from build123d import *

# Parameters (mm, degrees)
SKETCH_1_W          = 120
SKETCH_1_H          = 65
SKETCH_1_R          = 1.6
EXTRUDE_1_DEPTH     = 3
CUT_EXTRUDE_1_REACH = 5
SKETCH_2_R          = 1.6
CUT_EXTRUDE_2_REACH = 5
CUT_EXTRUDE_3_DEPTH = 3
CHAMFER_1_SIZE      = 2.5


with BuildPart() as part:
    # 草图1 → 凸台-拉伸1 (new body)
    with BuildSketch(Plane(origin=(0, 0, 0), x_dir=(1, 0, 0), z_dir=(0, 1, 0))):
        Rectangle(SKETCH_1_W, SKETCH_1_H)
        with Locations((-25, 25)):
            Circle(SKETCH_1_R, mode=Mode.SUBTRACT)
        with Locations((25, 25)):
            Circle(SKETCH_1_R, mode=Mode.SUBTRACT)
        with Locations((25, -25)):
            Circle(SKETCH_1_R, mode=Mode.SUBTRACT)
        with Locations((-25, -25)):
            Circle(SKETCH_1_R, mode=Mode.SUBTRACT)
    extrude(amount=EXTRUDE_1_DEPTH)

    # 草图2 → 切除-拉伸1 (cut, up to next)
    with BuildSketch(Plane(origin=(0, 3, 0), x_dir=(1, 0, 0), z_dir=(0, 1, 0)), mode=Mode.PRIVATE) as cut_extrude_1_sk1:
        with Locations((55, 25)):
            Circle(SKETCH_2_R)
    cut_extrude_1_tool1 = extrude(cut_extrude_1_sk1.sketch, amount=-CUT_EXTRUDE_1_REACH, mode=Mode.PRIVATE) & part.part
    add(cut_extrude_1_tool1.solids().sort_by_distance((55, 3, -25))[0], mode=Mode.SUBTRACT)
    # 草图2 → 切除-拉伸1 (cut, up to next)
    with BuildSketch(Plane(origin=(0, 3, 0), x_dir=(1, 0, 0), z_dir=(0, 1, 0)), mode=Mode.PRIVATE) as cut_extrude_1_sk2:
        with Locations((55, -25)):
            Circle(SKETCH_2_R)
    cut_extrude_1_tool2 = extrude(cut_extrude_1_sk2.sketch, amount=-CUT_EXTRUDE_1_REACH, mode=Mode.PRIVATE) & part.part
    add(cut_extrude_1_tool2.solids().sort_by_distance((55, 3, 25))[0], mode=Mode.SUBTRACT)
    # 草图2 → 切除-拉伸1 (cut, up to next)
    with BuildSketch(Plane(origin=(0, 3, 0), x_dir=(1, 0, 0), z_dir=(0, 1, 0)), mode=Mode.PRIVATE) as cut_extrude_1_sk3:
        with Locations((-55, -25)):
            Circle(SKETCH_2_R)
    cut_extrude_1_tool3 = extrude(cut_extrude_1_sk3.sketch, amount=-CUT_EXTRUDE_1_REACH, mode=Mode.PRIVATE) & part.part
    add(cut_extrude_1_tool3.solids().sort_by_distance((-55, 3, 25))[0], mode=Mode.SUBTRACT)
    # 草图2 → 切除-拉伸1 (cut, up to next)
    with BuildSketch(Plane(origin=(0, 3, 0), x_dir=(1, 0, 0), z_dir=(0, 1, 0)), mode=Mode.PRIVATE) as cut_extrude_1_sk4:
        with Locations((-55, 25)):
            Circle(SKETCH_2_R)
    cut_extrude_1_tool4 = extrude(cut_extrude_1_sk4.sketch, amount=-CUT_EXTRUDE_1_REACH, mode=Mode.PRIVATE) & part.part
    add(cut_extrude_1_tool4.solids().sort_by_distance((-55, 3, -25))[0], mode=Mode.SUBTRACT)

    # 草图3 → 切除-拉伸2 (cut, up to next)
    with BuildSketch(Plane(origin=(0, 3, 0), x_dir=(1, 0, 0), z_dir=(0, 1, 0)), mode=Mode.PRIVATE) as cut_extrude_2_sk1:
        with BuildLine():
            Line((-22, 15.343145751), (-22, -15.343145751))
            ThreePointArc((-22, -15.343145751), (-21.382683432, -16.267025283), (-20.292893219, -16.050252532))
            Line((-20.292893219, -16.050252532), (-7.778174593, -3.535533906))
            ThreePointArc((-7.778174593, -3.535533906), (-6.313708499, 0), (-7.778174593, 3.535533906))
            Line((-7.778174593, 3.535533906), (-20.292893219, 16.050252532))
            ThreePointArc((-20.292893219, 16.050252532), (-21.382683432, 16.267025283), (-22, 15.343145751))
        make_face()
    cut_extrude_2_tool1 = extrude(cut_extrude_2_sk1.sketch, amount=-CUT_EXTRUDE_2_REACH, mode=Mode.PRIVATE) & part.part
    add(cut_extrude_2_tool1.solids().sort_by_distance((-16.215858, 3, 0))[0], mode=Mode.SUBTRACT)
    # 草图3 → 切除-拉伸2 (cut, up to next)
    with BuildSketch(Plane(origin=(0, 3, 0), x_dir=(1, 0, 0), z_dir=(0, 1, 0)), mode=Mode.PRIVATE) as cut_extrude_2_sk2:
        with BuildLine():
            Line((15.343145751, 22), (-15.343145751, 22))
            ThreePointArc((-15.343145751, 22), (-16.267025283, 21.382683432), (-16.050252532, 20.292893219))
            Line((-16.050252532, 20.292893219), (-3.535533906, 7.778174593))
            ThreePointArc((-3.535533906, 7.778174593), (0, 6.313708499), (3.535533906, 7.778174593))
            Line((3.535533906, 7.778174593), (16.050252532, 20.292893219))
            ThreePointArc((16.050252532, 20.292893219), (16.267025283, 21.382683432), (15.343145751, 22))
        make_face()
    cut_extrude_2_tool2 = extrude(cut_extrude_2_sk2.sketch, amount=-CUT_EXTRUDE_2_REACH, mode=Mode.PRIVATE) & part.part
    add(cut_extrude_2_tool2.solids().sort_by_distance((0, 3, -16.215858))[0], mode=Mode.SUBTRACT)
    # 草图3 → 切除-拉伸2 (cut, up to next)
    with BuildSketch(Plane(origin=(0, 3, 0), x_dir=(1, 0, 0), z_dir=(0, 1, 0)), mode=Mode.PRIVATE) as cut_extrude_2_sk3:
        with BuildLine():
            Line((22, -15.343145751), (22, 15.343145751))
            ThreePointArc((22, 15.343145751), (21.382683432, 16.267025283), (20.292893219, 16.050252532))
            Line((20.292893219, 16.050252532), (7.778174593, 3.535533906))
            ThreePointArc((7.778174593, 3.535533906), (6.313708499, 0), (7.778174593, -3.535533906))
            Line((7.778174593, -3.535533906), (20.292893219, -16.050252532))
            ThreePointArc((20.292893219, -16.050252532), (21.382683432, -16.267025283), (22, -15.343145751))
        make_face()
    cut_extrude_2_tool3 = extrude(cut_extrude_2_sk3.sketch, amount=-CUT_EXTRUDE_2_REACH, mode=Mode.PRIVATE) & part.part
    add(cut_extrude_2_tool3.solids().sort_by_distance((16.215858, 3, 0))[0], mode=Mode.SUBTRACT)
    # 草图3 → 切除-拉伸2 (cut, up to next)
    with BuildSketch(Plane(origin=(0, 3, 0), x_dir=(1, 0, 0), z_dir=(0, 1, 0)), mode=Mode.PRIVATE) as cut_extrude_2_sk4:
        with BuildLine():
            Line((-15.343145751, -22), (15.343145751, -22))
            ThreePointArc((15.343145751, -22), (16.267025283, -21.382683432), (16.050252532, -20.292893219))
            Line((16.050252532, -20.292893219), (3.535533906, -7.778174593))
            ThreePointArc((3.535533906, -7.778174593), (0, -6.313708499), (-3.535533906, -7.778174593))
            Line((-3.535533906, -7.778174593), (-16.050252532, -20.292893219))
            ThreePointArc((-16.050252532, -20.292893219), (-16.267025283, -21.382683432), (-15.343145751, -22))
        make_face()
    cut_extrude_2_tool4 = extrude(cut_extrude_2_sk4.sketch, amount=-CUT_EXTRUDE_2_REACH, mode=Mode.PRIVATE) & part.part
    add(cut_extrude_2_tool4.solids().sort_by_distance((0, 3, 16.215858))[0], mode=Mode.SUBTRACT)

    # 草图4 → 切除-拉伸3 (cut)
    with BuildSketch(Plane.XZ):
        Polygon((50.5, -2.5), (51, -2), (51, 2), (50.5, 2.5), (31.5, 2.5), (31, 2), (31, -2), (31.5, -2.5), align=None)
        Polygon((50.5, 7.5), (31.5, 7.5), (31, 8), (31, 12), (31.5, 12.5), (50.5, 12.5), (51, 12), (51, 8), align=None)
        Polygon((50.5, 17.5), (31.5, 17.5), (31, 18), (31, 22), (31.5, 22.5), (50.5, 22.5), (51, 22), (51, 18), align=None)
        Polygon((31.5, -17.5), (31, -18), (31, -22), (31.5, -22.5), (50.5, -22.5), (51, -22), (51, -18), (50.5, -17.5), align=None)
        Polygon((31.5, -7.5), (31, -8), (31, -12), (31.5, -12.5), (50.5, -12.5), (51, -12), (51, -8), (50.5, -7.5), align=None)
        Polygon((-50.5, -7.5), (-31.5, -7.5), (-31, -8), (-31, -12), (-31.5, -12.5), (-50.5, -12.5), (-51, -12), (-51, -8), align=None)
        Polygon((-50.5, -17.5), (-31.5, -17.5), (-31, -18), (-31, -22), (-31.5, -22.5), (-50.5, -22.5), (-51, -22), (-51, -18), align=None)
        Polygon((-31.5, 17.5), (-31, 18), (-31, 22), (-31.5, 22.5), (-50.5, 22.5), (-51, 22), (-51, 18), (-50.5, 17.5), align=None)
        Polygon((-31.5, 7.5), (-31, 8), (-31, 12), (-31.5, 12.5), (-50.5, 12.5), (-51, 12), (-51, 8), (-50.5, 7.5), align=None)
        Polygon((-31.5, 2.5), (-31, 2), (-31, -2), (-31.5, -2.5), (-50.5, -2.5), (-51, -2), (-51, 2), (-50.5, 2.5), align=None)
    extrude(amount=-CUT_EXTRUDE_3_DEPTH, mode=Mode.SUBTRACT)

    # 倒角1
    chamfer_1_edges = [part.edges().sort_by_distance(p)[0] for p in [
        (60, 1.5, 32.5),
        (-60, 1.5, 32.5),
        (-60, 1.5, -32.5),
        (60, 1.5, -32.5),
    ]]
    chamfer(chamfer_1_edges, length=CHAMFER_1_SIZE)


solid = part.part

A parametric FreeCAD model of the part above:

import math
import FreeCAD as App
import Part
import Sketcher
from FreeCAD import Vector


def edges_at(feature, points):
    """Names of the edges that pass closest to the given points."""
    edges = feature.Shape.Edges
    near = lambda p: min(range(len(edges)), key=lambda i: edges[i].distToShape(Part.Vertex(*p))[0])
    return sorted({f"Edge{near(p) + 1}" for p in points})

doc = App.newDocument("Part")
params = doc.addObject("Spreadsheet::Sheet", "Params")
for row, (alias, value) in enumerate([
    ("sketch1_diameter", "3.2 mm"),
    ("sketch1_width", "120 mm"),
    ("sketch1_height", "65 mm"),
    ("pad1_length", "3 mm"),
    ("sketch2_diameter", "3.2 mm"),
    ("sketch3_diameter", "3.2 mm"),
    ("sketch4_diameter", "3.2 mm"),
    ("sketch5_diameter", "3.2 mm"),
    ("sketch6_radius", "1 mm"),
    ("sketch6_radius2", "5 mm"),
    ("sketch7_radius", "1 mm"),
    ("sketch7_radius2", "5 mm"),
    ("sketch8_radius", "1 mm"),
    ("sketch8_radius2", "5 mm"),
    ("sketch9_radius", "1 mm"),
    ("sketch9_radius2", "5 mm"),
    ("sketch10_width", "19 mm"),
    ("sketch10_height", "4 mm"),
    ("pocket9_length", "3 mm"),
    ("chamfer_size", "2.5 mm"),
], start=1):
    params.set(f"A{row}", alias)
    params.set(f"B{row}", "=" + value)
    params.setAlias(f"B{row}", alias)

body = doc.addObject("PartDesign::Body", "Body")

# Sketch on XZ plane
sketch1 = body.newObject("Sketcher::SketchObject", "Sketch")
sketch1.AttachmentSupport = (doc.getObject("XZ_Plane"), [""])
sketch1.MapMode = "FlatFace"
sketch1.addGeometry([
    Part.LineSegment(Vector(-60, -32.5, 0), Vector(-60, 32.5, 0)),  # 0
    Part.LineSegment(Vector(-60, 32.5, 0), Vector(60, 32.5, 0)),  # 1
    Part.LineSegment(Vector(60, 32.5, 0), Vector(60, -32.5, 0)),  # 2
    Part.LineSegment(Vector(60, -32.5, 0), Vector(-60, -32.5, 0)),  # 3
    Part.Circle(Vector(-25, 25, 0), Vector(0, 0, 1), 1.6),  # 4
    Part.Circle(Vector(25, 25, 0), Vector(0, 0, 1), 1.6),  # 5
    Part.Circle(Vector(-25, -25, 0), Vector(0, 0, 1), 1.6),  # 6
    Part.Circle(Vector(25, -25, 0), Vector(0, 0, 1), 1.6),  # 7
], False)
sketch1.addConstraint([
    Sketcher.Constraint("Coincident", 0, 2, 1, 1),
    Sketcher.Constraint("Coincident", 1, 2, 2, 1),
    Sketcher.Constraint("Coincident", 2, 2, 3, 1),
    Sketcher.Constraint("Coincident", 3, 2, 0, 1),
    Sketcher.Constraint("Vertical", 0),
    Sketcher.Constraint("Horizontal", 1),
    Sketcher.Constraint("Vertical", 2),
    Sketcher.Constraint("Horizontal", 3),
    Sketcher.Constraint("Equal", 4, 5),
    Sketcher.Constraint("Equal", 5, 6),
    Sketcher.Constraint("Equal", 6, 7),
    Sketcher.Constraint("Symmetric", 5, 3, 6, 3, -1, 1),
    Sketcher.Constraint("Symmetric", 4, 3, 7, 3, -1, 1),
    Sketcher.Constraint("Symmetric", 0, 2, 2, 2, -1, 1),
    Sketcher.Constraint("Symmetric", 4, 3, 5, 3, -2),
    Sketcher.Constraint("Diameter", 4, 3.2),
    Sketcher.Constraint("DistanceX", 1, 1, 1, 2, 120.0),
    Sketcher.Constraint("DistanceY", 0, 1, 0, 2, 65.0),
    Sketcher.Constraint("DistanceX", 4, 3, -1, 1, 25.0),
    Sketcher.Constraint("DistanceY", -1, 1, 4, 3, 25.0),
])
sketch1.setExpression("Constraints[15]", "Params.sketch1_diameter")
sketch1.setExpression("Constraints[16]", "Params.sketch1_width")
sketch1.setExpression("Constraints[17]", "Params.sketch1_height")
pad1 = body.newObject("PartDesign::Pad", "Pad")
pad1.Profile = sketch1
pad1.setExpression("Length", "Params.pad1_length")
pad1.Reversed = True

# Sketch on XZ plane
sketch2 = body.newObject("Sketcher::SketchObject", "Sketch001")
sketch2.AttachmentSupport = (doc.getObject("XZ_Plane"), [""])
sketch2.MapMode = "FlatFace"
sketch2.AttachmentOffset = App.Placement(Vector(0, 0, -3), App.Rotation())
sketch2.addGeometry(Part.Circle(Vector(55, -25, 0), Vector(0, 0, 1), 1.6), False)
sketch2.addConstraint([
    Sketcher.Constraint("Diameter", 0, 3.2),
    Sketcher.Constraint("DistanceX", -1, 1, 0, 3, 55.0),
    Sketcher.Constraint("DistanceY", 0, 3, -1, 1, 25.0),
])
sketch2.setExpression("Constraints[0]", "Params.sketch2_diameter")
pocket1 = body.newObject("PartDesign::Pocket", "Pocket")
pocket1.Profile = sketch2
pocket1.Type = "UpToFirst"
pocket1.Reversed = True

# Sketch on XZ plane
sketch3 = body.newObject("Sketcher::SketchObject", "Sketch002")
sketch3.AttachmentSupport = (doc.getObject("XZ_Plane"), [""])
sketch3.MapMode = "FlatFace"
sketch3.AttachmentOffset = App.Placement(Vector(0, 0, -3), App.Rotation())
sketch3.addGeometry(Part.Circle(Vector(55, 25, 0), Vector(0, 0, 1), 1.6), False)
sketch3.addConstraint([
    Sketcher.Constraint("Diameter", 0, 3.2),
    Sketcher.Constraint("DistanceX", -1, 1, 0, 3, 55.0),
    Sketcher.Constraint("DistanceY", -1, 1, 0, 3, 25.0),
])
sketch3.setExpression("Constraints[0]", "Params.sketch3_diameter")
pocket2 = body.newObject("PartDesign::Pocket", "Pocket001")
pocket2.Profile = sketch3
pocket2.Type = "UpToFirst"
pocket2.Reversed = True

# Sketch on XZ plane
sketch4 = body.newObject("Sketcher::SketchObject", "Sketch003")
sketch4.AttachmentSupport = (doc.getObject("XZ_Plane"), [""])
sketch4.MapMode = "FlatFace"
sketch4.AttachmentOffset = App.Placement(Vector(0, 0, -3), App.Rotation())
sketch4.addGeometry(Part.Circle(Vector(-55, 25, 0), Vector(0, 0, 1), 1.6), False)
sketch4.addConstraint([
    Sketcher.Constraint("Diameter", 0, 3.2),
    Sketcher.Constraint("DistanceX", 0, 3, -1, 1, 55.0),
    Sketcher.Constraint("DistanceY", -1, 1, 0, 3, 25.0),
])
sketch4.setExpression("Constraints[0]", "Params.sketch4_diameter")
pocket3 = body.newObject("PartDesign::Pocket", "Pocket002")
pocket3.Profile = sketch4
pocket3.Type = "UpToFirst"
pocket3.Reversed = True

# Sketch on XZ plane
sketch5 = body.newObject("Sketcher::SketchObject", "Sketch004")
sketch5.AttachmentSupport = (doc.getObject("XZ_Plane"), [""])
sketch5.MapMode = "FlatFace"
sketch5.AttachmentOffset = App.Placement(Vector(0, 0, -3), App.Rotation())
sketch5.addGeometry(Part.Circle(Vector(-55, -25, 0), Vector(0, 0, 1), 1.6), False)
sketch5.addConstraint([
    Sketcher.Constraint("Diameter", 0, 3.2),
    Sketcher.Constraint("DistanceX", 0, 3, -1, 1, 55.0),
    Sketcher.Constraint("DistanceY", 0, 3, -1, 1, 25.0),
])
sketch5.setExpression("Constraints[0]", "Params.sketch5_diameter")
pocket4 = body.newObject("PartDesign::Pocket", "Pocket003")
pocket4.Profile = sketch5
pocket4.Type = "UpToFirst"
pocket4.Reversed = True

# Sketch on XZ plane
sketch6 = body.newObject("Sketcher::SketchObject", "Sketch005")
sketch6.AttachmentSupport = (doc.getObject("XZ_Plane"), [""])
sketch6.MapMode = "FlatFace"
sketch6.AttachmentOffset = App.Placement(Vector(0, 0, -3), App.Rotation())
sketch6.addGeometry([
    Part.LineSegment(Vector(-22, -15.3, 0), Vector(-22, 15.3, 0)),  # 0
    Part.ArcOfCircle(Part.Circle(Vector(-21, 15.3, 0), Vector(0, 0, 1), 1), math.radians(45), math.radians(180)),  # 1
    Part.LineSegment(Vector(-20.3, 16.1, 0), Vector(-7.8, 3.5, 0)),  # 2
    Part.ArcOfCircle(Part.Circle(Vector(-11.3, 0, 0), Vector(0, 0, 1), 5), math.radians(-45), math.radians(45)),  # 3
    Part.LineSegment(Vector(-7.8, -3.5, 0), Vector(-20.3, -16.1, 0)),  # 4
    Part.ArcOfCircle(Part.Circle(Vector(-21, -15.3, 0), Vector(0, 0, 1), 1), math.radians(-180), math.radians(-45)),  # 5
], False)
sketch6.addConstraint([
    Sketcher.Constraint("Tangent", 0, 2, 1, 2),
    Sketcher.Constraint("Tangent", 1, 1, 2, 1),
    Sketcher.Constraint("Tangent", 2, 2, 3, 2),
    Sketcher.Constraint("Tangent", 3, 1, 4, 1),
    Sketcher.Constraint("Tangent", 4, 2, 5, 2),
    Sketcher.Constraint("Tangent", 5, 1, 0, 1),
    Sketcher.Constraint("Vertical", 0),
    Sketcher.Constraint("Equal", 1, 5),
    Sketcher.Constraint("Symmetric", 2, 2, 3, 1, -1),
    Sketcher.Constraint("Perpendicular", 2, 4),
    Sketcher.Constraint("Radius", 1, 1.0),
    Sketcher.Constraint("Radius", 3, 5.0),
    Sketcher.Constraint("DistanceX", 1, 3, -1, 1, 21.0),
    Sketcher.Constraint("DistanceY", 0, 1, 0, 2, 30.686292),
])
sketch6.setExpression("Constraints[10]", "Params.sketch6_radius")
sketch6.setExpression("Constraints[11]", "Params.sketch6_radius2")
pocket5 = body.newObject("PartDesign::Pocket", "Pocket004")
pocket5.Profile = sketch6
pocket5.Type = "UpToFirst"
pocket5.Reversed = True

# Sketch on XZ plane
sketch7 = body.newObject("Sketcher::SketchObject", "Sketch006")
sketch7.AttachmentSupport = (doc.getObject("XZ_Plane"), [""])
sketch7.MapMode = "FlatFace"
sketch7.AttachmentOffset = App.Placement(Vector(0, 0, -3), App.Rotation())
sketch7.addGeometry([
    Part.LineSegment(Vector(15.3, -22, 0), Vector(-15.3, -22, 0)),  # 0
    Part.ArcOfCircle(Part.Circle(Vector(-15.3, -21, 0), Vector(0, 0, 1), 1), math.radians(135), math.radians(270)),  # 1
    Part.LineSegment(Vector(-16.1, -20.3, 0), Vector(-3.5, -7.8, 0)),  # 2
    Part.ArcOfCircle(Part.Circle(Vector(0, -11.3, 0), Vector(0, 0, 1), 5), math.radians(45), math.radians(135)),  # 3
    Part.LineSegment(Vector(3.5, -7.8, 0), Vector(16.1, -20.3, 0)),  # 4
    Part.ArcOfCircle(Part.Circle(Vector(15.3, -21, 0), Vector(0, 0, 1), 1), math.radians(-90), math.radians(45)),  # 5
], False)
sketch7.addConstraint([
    Sketcher.Constraint("Tangent", 0, 2, 1, 2),
    Sketcher.Constraint("Tangent", 1, 1, 2, 1),
    Sketcher.Constraint("Tangent", 2, 2, 3, 2),
    Sketcher.Constraint("Tangent", 3, 1, 4, 1),
    Sketcher.Constraint("Tangent", 4, 2, 5, 2),
    Sketcher.Constraint("Tangent", 5, 1, 0, 1),
    Sketcher.Constraint("Horizontal", 0),
    Sketcher.Constraint("Equal", 1, 5),
    Sketcher.Constraint("Symmetric", 2, 2, 3, 1, -2),
    Sketcher.Constraint("Perpendicular", 2, 4),
    Sketcher.Constraint("Radius", 1, 1.0),
    Sketcher.Constraint("Radius", 3, 5.0),
    Sketcher.Constraint("DistanceY", 1, 3, -1, 1, 21.0),
    Sketcher.Constraint("DistanceX", 0, 2, 0, 1, 30.686292),
])
sketch7.setExpression("Constraints[10]", "Params.sketch7_radius")
sketch7.setExpression("Constraints[11]", "Params.sketch7_radius2")
pocket6 = body.newObject("PartDesign::Pocket", "Pocket005")
pocket6.Profile = sketch7
pocket6.Type = "UpToFirst"
pocket6.Reversed = True

# Sketch on XZ plane
sketch8 = body.newObject("Sketcher::SketchObject", "Sketch007")
sketch8.AttachmentSupport = (doc.getObject("XZ_Plane"), [""])
sketch8.MapMode = "FlatFace"
sketch8.AttachmentOffset = App.Placement(Vector(0, 0, -3), App.Rotation())
sketch8.addGeometry([
    Part.LineSegment(Vector(22, 15.3, 0), Vector(22, -15.3, 0)),  # 0
    Part.ArcOfCircle(Part.Circle(Vector(21, -15.3, 0), Vector(0, 0, 1), 1), math.radians(-135), math.radians(0)),  # 1
    Part.LineSegment(Vector(20.3, -16.1, 0), Vector(7.8, -3.5, 0)),  # 2
    Part.ArcOfCircle(Part.Circle(Vector(11.3, 0, 0), Vector(0, 0, 1), 5), math.radians(135), math.radians(225)),  # 3
    Part.LineSegment(Vector(7.8, 3.5, 0), Vector(20.3, 16.1, 0)),  # 4
    Part.ArcOfCircle(Part.Circle(Vector(21, 15.3, 0), Vector(0, 0, 1), 1), math.radians(0), math.radians(135)),  # 5
], False)
sketch8.addConstraint([
    Sketcher.Constraint("Tangent", 0, 2, 1, 2),
    Sketcher.Constraint("Tangent", 1, 1, 2, 1),
    Sketcher.Constraint("Tangent", 2, 2, 3, 2),
    Sketcher.Constraint("Tangent", 3, 1, 4, 1),
    Sketcher.Constraint("Tangent", 4, 2, 5, 2),
    Sketcher.Constraint("Tangent", 5, 1, 0, 1),
    Sketcher.Constraint("Vertical", 0),
    Sketcher.Constraint("Equal", 1, 5),
    Sketcher.Constraint("Symmetric", 2, 2, 3, 1, -1),
    Sketcher.Constraint("Perpendicular", 2, 4),
    Sketcher.Constraint("Radius", 1, 1.0),
    Sketcher.Constraint("Radius", 3, 5.0),
    Sketcher.Constraint("DistanceX", -1, 1, 1, 3, 21.0),
    Sketcher.Constraint("DistanceY", 0, 2, 0, 1, 30.686292),
])
sketch8.setExpression("Constraints[10]", "Params.sketch8_radius")
sketch8.setExpression("Constraints[11]", "Params.sketch8_radius2")
pocket7 = body.newObject("PartDesign::Pocket", "Pocket006")
pocket7.Profile = sketch8
pocket7.Type = "UpToFirst"
pocket7.Reversed = True

# Sketch on XZ plane
sketch9 = body.newObject("Sketcher::SketchObject", "Sketch008")
sketch9.AttachmentSupport = (doc.getObject("XZ_Plane"), [""])
sketch9.MapMode = "FlatFace"
sketch9.AttachmentOffset = App.Placement(Vector(0, 0, -3), App.Rotation())
sketch9.addGeometry([
    Part.LineSegment(Vector(-15.3, 22, 0), Vector(15.3, 22, 0)),  # 0
    Part.ArcOfCircle(Part.Circle(Vector(15.3, 21, 0), Vector(0, 0, 1), 1), math.radians(-45), math.radians(90)),  # 1
    Part.LineSegment(Vector(16.1, 20.3, 0), Vector(3.5, 7.8, 0)),  # 2
    Part.ArcOfCircle(Part.Circle(Vector(0, 11.3, 0), Vector(0, 0, 1), 5), math.radians(-135), math.radians(-45)),  # 3
    Part.LineSegment(Vector(-3.5, 7.8, 0), Vector(-16.1, 20.3, 0)),  # 4
    Part.ArcOfCircle(Part.Circle(Vector(-15.3, 21, 0), Vector(0, 0, 1), 1), math.radians(90), math.radians(225)),  # 5
], False)
sketch9.addConstraint([
    Sketcher.Constraint("Tangent", 0, 2, 1, 2),
    Sketcher.Constraint("Tangent", 1, 1, 2, 1),
    Sketcher.Constraint("Tangent", 2, 2, 3, 2),
    Sketcher.Constraint("Tangent", 3, 1, 4, 1),
    Sketcher.Constraint("Tangent", 4, 2, 5, 2),
    Sketcher.Constraint("Tangent", 5, 1, 0, 1),
    Sketcher.Constraint("Horizontal", 0),
    Sketcher.Constraint("Equal", 1, 5),
    Sketcher.Constraint("Symmetric", 2, 2, 3, 1, -2),
    Sketcher.Constraint("Perpendicular", 2, 4),
    Sketcher.Constraint("Radius", 1, 1.0),
    Sketcher.Constraint("Radius", 3, 5.0),
    Sketcher.Constraint("DistanceY", -1, 1, 1, 3, 21.0),
    Sketcher.Constraint("DistanceX", 0, 1, 0, 2, 30.686292),
])
sketch9.setExpression("Constraints[10]", "Params.sketch9_radius")
sketch9.setExpression("Constraints[11]", "Params.sketch9_radius2")
pocket8 = body.newObject("PartDesign::Pocket", "Pocket007")
pocket8.Profile = sketch9
pocket8.Type = "UpToFirst"
pocket8.Reversed = True

# Sketch on XZ plane
sketch10 = body.newObject("Sketcher::SketchObject", "Sketch009")
sketch10.AttachmentSupport = (doc.getObject("XZ_Plane"), [""])
sketch10.MapMode = "FlatFace"
sketch10.addGeometry([
    Part.LineSegment(Vector(50.5, -2.5, 0), Vector(51, -2, 0)),  # 0
    Part.LineSegment(Vector(51, -2, 0), Vector(51, 2, 0)),  # 1
    Part.LineSegment(Vector(51, 2, 0), Vector(50.5, 2.5, 0)),  # 2
    Part.LineSegment(Vector(50.5, 2.5, 0), Vector(31.5, 2.5, 0)),  # 3
    Part.LineSegment(Vector(31.5, 2.5, 0), Vector(31, 2, 0)),  # 4
    Part.LineSegment(Vector(31, 2, 0), Vector(31, -2, 0)),  # 5
    Part.LineSegment(Vector(31, -2, 0), Vector(31.5, -2.5, 0)),  # 6
    Part.LineSegment(Vector(31.5, -2.5, 0), Vector(50.5, -2.5, 0)),  # 7
    Part.LineSegment(Vector(31.5, 7.5, 0), Vector(50.5, 7.5, 0)),  # 8
    Part.LineSegment(Vector(50.5, 7.5, 0), Vector(51, 8, 0)),  # 9
    Part.LineSegment(Vector(51, 8, 0), Vector(51, 12, 0)),  # 10
    Part.LineSegment(Vector(51, 12, 0), Vector(50.5, 12.5, 0)),  # 11
    Part.LineSegment(Vector(50.5, 12.5, 0), Vector(31.5, 12.5, 0)),  # 12
    Part.LineSegment(Vector(31.5, 12.5, 0), Vector(31, 12, 0)),  # 13
    Part.LineSegment(Vector(31, 12, 0), Vector(31, 8, 0)),  # 14
    Part.LineSegment(Vector(31, 8, 0), Vector(31.5, 7.5, 0)),  # 15
    Part.LineSegment(Vector(31.5, 17.5, 0), Vector(50.5, 17.5, 0)),  # 16
    Part.LineSegment(Vector(50.5, 17.5, 0), Vector(51, 18, 0)),  # 17
    Part.LineSegment(Vector(51, 18, 0), Vector(51, 22, 0)),  # 18
    Part.LineSegment(Vector(51, 22, 0), Vector(50.5, 22.5, 0)),  # 19
    Part.LineSegment(Vector(50.5, 22.5, 0), Vector(31.5, 22.5, 0)),  # 20
    Part.LineSegment(Vector(31.5, 22.5, 0), Vector(31, 22, 0)),  # 21
    Part.LineSegment(Vector(31, 22, 0), Vector(31, 18, 0)),  # 22
    Part.LineSegment(Vector(31, 18, 0), Vector(31.5, 17.5, 0)),  # 23
    Part.LineSegment(Vector(31.5, -17.5, 0), Vector(31, -18, 0)),  # 24
    Part.LineSegment(Vector(31, -18, 0), Vector(31, -22, 0)),  # 25
    Part.LineSegment(Vector(31, -22, 0), Vector(31.5, -22.5, 0)),  # 26
    Part.LineSegment(Vector(31.5, -22.5, 0), Vector(50.5, -22.5, 0)),  # 27
    Part.LineSegment(Vector(50.5, -22.5, 0), Vector(51, -22, 0)),  # 28
    Part.LineSegment(Vector(51, -22, 0), Vector(51, -18, 0)),  # 29
    Part.LineSegment(Vector(51, -18, 0), Vector(50.5, -17.5, 0)),  # 30
    Part.LineSegment(Vector(50.5, -17.5, 0), Vector(31.5, -17.5, 0)),  # 31
    Part.LineSegment(Vector(31.5, -7.5, 0), Vector(31, -8, 0)),  # 32
    Part.LineSegment(Vector(31, -8, 0), Vector(31, -12, 0)),  # 33
    Part.LineSegment(Vector(31, -12, 0), Vector(31.5, -12.5, 0)),  # 34
    Part.LineSegment(Vector(31.5, -12.5, 0), Vector(50.5, -12.5, 0)),  # 35
    Part.LineSegment(Vector(50.5, -12.5, 0), Vector(51, -12, 0)),  # 36
    Part.LineSegment(Vector(51, -12, 0), Vector(51, -8, 0)),  # 37
    Part.LineSegment(Vector(51, -8, 0), Vector(50.5, -7.5, 0)),  # 38
    Part.LineSegment(Vector(50.5, -7.5, 0), Vector(31.5, -7.5, 0)),  # 39
    Part.LineSegment(Vector(-31.5, -7.5, 0), Vector(-50.5, -7.5, 0)),  # 40
    Part.LineSegment(Vector(-50.5, -7.5, 0), Vector(-51, -8, 0)),  # 41
    Part.LineSegment(Vector(-51, -8, 0), Vector(-51, -12, 0)),  # 42
    Part.LineSegment(Vector(-51, -12, 0), Vector(-50.5, -12.5, 0)),  # 43
    Part.LineSegment(Vector(-50.5, -12.5, 0), Vector(-31.5, -12.5, 0)),  # 44
    Part.LineSegment(Vector(-31.5, -12.5, 0), Vector(-31, -12, 0)),  # 45
    Part.LineSegment(Vector(-31, -12, 0), Vector(-31, -8, 0)),  # 46
    Part.LineSegment(Vector(-31, -8, 0), Vector(-31.5, -7.5, 0)),  # 47
    Part.LineSegment(Vector(-31.5, -17.5, 0), Vector(-50.5, -17.5, 0)),  # 48
    Part.LineSegment(Vector(-50.5, -17.5, 0), Vector(-51, -18, 0)),  # 49
    Part.LineSegment(Vector(-51, -18, 0), Vector(-51, -22, 0)),  # 50
    Part.LineSegment(Vector(-51, -22, 0), Vector(-50.5, -22.5, 0)),  # 51
    Part.LineSegment(Vector(-50.5, -22.5, 0), Vector(-31.5, -22.5, 0)),  # 52
    Part.LineSegment(Vector(-31.5, -22.5, 0), Vector(-31, -22, 0)),  # 53
    Part.LineSegment(Vector(-31, -22, 0), Vector(-31, -18, 0)),  # 54
    Part.LineSegment(Vector(-31, -18, 0), Vector(-31.5, -17.5, 0)),  # 55
    Part.LineSegment(Vector(-31.5, 17.5, 0), Vector(-31, 18, 0)),  # 56
    Part.LineSegment(Vector(-31, 18, 0), Vector(-31, 22, 0)),  # 57
    Part.LineSegment(Vector(-31, 22, 0), Vector(-31.5, 22.5, 0)),  # 58
    Part.LineSegment(Vector(-31.5, 22.5, 0), Vector(-50.5, 22.5, 0)),  # 59
    Part.LineSegment(Vector(-50.5, 22.5, 0), Vector(-51, 22, 0)),  # 60
    Part.LineSegment(Vector(-51, 22, 0), Vector(-51, 18, 0)),  # 61
    Part.LineSegment(Vector(-51, 18, 0), Vector(-50.5, 17.5, 0)),  # 62
    Part.LineSegment(Vector(-50.5, 17.5, 0), Vector(-31.5, 17.5, 0)),  # 63
    Part.LineSegment(Vector(-31.5, 7.5, 0), Vector(-31, 8, 0)),  # 64
    Part.LineSegment(Vector(-31, 8, 0), Vector(-31, 12, 0)),  # 65
    Part.LineSegment(Vector(-31, 12, 0), Vector(-31.5, 12.5, 0)),  # 66
    Part.LineSegment(Vector(-31.5, 12.5, 0), Vector(-50.5, 12.5, 0)),  # 67
    Part.LineSegment(Vector(-50.5, 12.5, 0), Vector(-51, 12, 0)),  # 68
    Part.LineSegment(Vector(-51, 12, 0), Vector(-51, 8, 0)),  # 69
    Part.LineSegment(Vector(-51, 8, 0), Vector(-50.5, 7.5, 0)),  # 70
    Part.LineSegment(Vector(-50.5, 7.5, 0), Vector(-31.5, 7.5, 0)),  # 71
    Part.LineSegment(Vector(-31, 2, 0), Vector(-31.5, 2.5, 0)),  # 72
    Part.LineSegment(Vector(-31.5, 2.5, 0), Vector(-50.5, 2.5, 0)),  # 73
    Part.LineSegment(Vector(-50.5, 2.5, 0), Vector(-51, 2, 0)),  # 74
    Part.LineSegment(Vector(-51, 2, 0), Vector(-51, -2, 0)),  # 75
    Part.LineSegment(Vector(-51, -2, 0), Vector(-50.5, -2.5, 0)),  # 76
    Part.LineSegment(Vector(-50.5, -2.5, 0), Vector(-31.5, -2.5, 0)),  # 77
    Part.LineSegment(Vector(-31.5, -2.5, 0), Vector(-31, -2, 0)),  # 78
    Part.LineSegment(Vector(-31, -2, 0), Vector(-31, 2, 0)),  # 79
], False)
sketch10.addConstraint([
    Sketcher.Constraint("Coincident", 0, 2, 1, 1),
    Sketcher.Constraint("Coincident", 1, 2, 2, 1),
    Sketcher.Constraint("Coincident", 2, 2, 3, 1),
    Sketcher.Constraint("Coincident", 3, 2, 4, 1),
    Sketcher.Constraint("Coincident", 4, 2, 5, 1),
    Sketcher.Constraint("Coincident", 5, 2, 6, 1),
    Sketcher.Constraint("Coincident", 6, 2, 7, 1),
    Sketcher.Constraint("Coincident", 7, 2, 0, 1),
    Sketcher.Constraint("Coincident", 8, 2, 9, 1),
    Sketcher.Constraint("Coincident", 9, 2, 10, 1),
    Sketcher.Constraint("Coincident", 10, 2, 11, 1),
    Sketcher.Constraint("Coincident", 11, 2, 12, 1),
    Sketcher.Constraint("Coincident", 12, 2, 13, 1),
    Sketcher.Constraint("Coincident", 13, 2, 14, 1),
    Sketcher.Constraint("Coincident", 14, 2, 15, 1),
    Sketcher.Constraint("Coincident", 15, 2, 8, 1),
    Sketcher.Constraint("Coincident", 16, 2, 17, 1),
    Sketcher.Constraint("Coincident", 17, 2, 18, 1),
    Sketcher.Constraint("Coincident", 18, 2, 19, 1),
    Sketcher.Constraint("Coincident", 19, 2, 20, 1),
    Sketcher.Constraint("Coincident", 20, 2, 21, 1),
    Sketcher.Constraint("Coincident", 21, 2, 22, 1),
    Sketcher.Constraint("Coincident", 22, 2, 23, 1),
    Sketcher.Constraint("Coincident", 23, 2, 16, 1),
    Sketcher.Constraint("Coincident", 24, 2, 25, 1),
    Sketcher.Constraint("Coincident", 25, 2, 26, 1),
    Sketcher.Constraint("Coincident", 26, 2, 27, 1),
    Sketcher.Constraint("Coincident", 27, 2, 28, 1),
    Sketcher.Constraint("Coincident", 28, 2, 29, 1),
    Sketcher.Constraint("Coincident", 29, 2, 30, 1),
    Sketcher.Constraint("Coincident", 30, 2, 31, 1),
    Sketcher.Constraint("Coincident", 31, 2, 24, 1),
    Sketcher.Constraint("Coincident", 32, 2, 33, 1),
    Sketcher.Constraint("Coincident", 33, 2, 34, 1),
    Sketcher.Constraint("Coincident", 34, 2, 35, 1),
    Sketcher.Constraint("Coincident", 35, 2, 36, 1),
    Sketcher.Constraint("Coincident", 36, 2, 37, 1),
    Sketcher.Constraint("Coincident", 37, 2, 38, 1),
    Sketcher.Constraint("Coincident", 38, 2, 39, 1),
    Sketcher.Constraint("Coincident", 39, 2, 32, 1),
    Sketcher.Constraint("Coincident", 40, 2, 41, 1),
    Sketcher.Constraint("Coincident", 41, 2, 42, 1),
    Sketcher.Constraint("Coincident", 42, 2, 43, 1),
    Sketcher.Constraint("Coincident", 43, 2, 44, 1),
    Sketcher.Constraint("Coincident", 44, 2, 45, 1),
    Sketcher.Constraint("Coincident", 45, 2, 46, 1),
    Sketcher.Constraint("Coincident", 46, 2, 47, 1),
    Sketcher.Constraint("Coincident", 47, 2, 40, 1),
    Sketcher.Constraint("Coincident", 48, 2, 49, 1),
    Sketcher.Constraint("Coincident", 49, 2, 50, 1),
    Sketcher.Constraint("Coincident", 50, 2, 51, 1),
    Sketcher.Constraint("Coincident", 51, 2, 52, 1),
    Sketcher.Constraint("Coincident", 52, 2, 53, 1),
    Sketcher.Constraint("Coincident", 53, 2, 54, 1),
    Sketcher.Constraint("Coincident", 54, 2, 55, 1),
    Sketcher.Constraint("Coincident", 55, 2, 48, 1),
    Sketcher.Constraint("Coincident", 56, 2, 57, 1),
    Sketcher.Constraint("Coincident", 57, 2, 58, 1),
    Sketcher.Constraint("Coincident", 58, 2, 59, 1),
    Sketcher.Constraint("Coincident", 59, 2, 60, 1),
    Sketcher.Constraint("Coincident", 60, 2, 61, 1),
    Sketcher.Constraint("Coincident", 61, 2, 62, 1),
    Sketcher.Constraint("Coincident", 62, 2, 63, 1),
    Sketcher.Constraint("Coincident", 63, 2, 56, 1),
    Sketcher.Constraint("Coincident", 64, 2, 65, 1),
    Sketcher.Constraint("Coincident", 65, 2, 66, 1),
    Sketcher.Constraint("Coincident", 66, 2, 67, 1),
    Sketcher.Constraint("Coincident", 67, 2, 68, 1),
    Sketcher.Constraint("Coincident", 68, 2, 69, 1),
    Sketcher.Constraint("Coincident", 69, 2, 70, 1),
    Sketcher.Constraint("Coincident", 70, 2, 71, 1),
    Sketcher.Constraint("Coincident", 71, 2, 64, 1),
    Sketcher.Constraint("Coincident", 72, 2, 73, 1),
    Sketcher.Constraint("Coincident", 73, 2, 74, 1),
    Sketcher.Constraint("Coincident", 74, 2, 75, 1),
    Sketcher.Constraint("Coincident", 75, 2, 76, 1),
    Sketcher.Constraint("Coincident", 76, 2, 77, 1),
    Sketcher.Constraint("Coincident", 77, 2, 78, 1),
    Sketcher.Constraint("Coincident", 78, 2, 79, 1),
    Sketcher.Constraint("Coincident", 79, 2, 72, 1),
    Sketcher.Constraint("Vertical", 1),
    Sketcher.Constraint("Horizontal", 3),
    Sketcher.Constraint("Vertical", 5),
    Sketcher.Constraint("Horizontal", 7),
    Sketcher.Constraint("Horizontal", 8),
    Sketcher.Constraint("Vertical", 10),
    Sketcher.Constraint("Horizontal", 12),
    Sketcher.Constraint("Vertical", 14),
    Sketcher.Constraint("Horizontal", 16),
    Sketcher.Constraint("Vertical", 18),
    Sketcher.Constraint("Horizontal", 20),
    Sketcher.Constraint("Vertical", 22),
    Sketcher.Constraint("Vertical", 25),
    Sketcher.Constraint("Horizontal", 27),
    Sketcher.Constraint("Vertical", 29),
    Sketcher.Constraint("Horizontal", 31),
    Sketcher.Constraint("Vertical", 33),
    Sketcher.Constraint("Horizontal", 35),
    Sketcher.Constraint("Vertical", 37),
    Sketcher.Constraint("Horizontal", 39),
    Sketcher.Constraint("Horizontal", 40),
    Sketcher.Constraint("Vertical", 42),
    Sketcher.Constraint("Horizontal", 44),
    Sketcher.Constraint("Vertical", 46),
    Sketcher.Constraint("Horizontal", 48),
    Sketcher.Constraint("Vertical", 50),
    Sketcher.Constraint("Horizontal", 52),
    Sketcher.Constraint("Vertical", 54),
    Sketcher.Constraint("Vertical", 57),
    Sketcher.Constraint("Horizontal", 59),
    Sketcher.Constraint("Vertical", 61),
    Sketcher.Constraint("Horizontal", 63),
    Sketcher.Constraint("Vertical", 65),
    Sketcher.Constraint("Horizontal", 67),
    Sketcher.Constraint("Vertical", 69),
    Sketcher.Constraint("Horizontal", 71),
    Sketcher.Constraint("Horizontal", 73),
    Sketcher.Constraint("Vertical", 75),
    Sketcher.Constraint("Horizontal", 77),
    Sketcher.Constraint("Vertical", 79),
    Sketcher.Constraint("Symmetric", 8, 2, 40, 2, -1, 1),
    Sketcher.Constraint("Symmetric", 9, 2, 41, 2, -1, 1),
    Sketcher.Constraint("Symmetric", 11, 2, 43, 2, -1, 1),
    Sketcher.Constraint("Symmetric", 13, 2, 45, 2, -1, 1),
    Sketcher.Constraint("Symmetric", 16, 2, 48, 2, -1, 1),
    Sketcher.Constraint("Symmetric", 17, 2, 49, 2, -1, 1),
    Sketcher.Constraint("Symmetric", 19, 2, 51, 2, -1, 1),
    Sketcher.Constraint("Symmetric", 21, 2, 53, 2, -1, 1),
    Sketcher.Constraint("Symmetric", 24, 2, 56, 2, -1, 1),
    Sketcher.Constraint("Symmetric", 26, 2, 58, 2, -1, 1),
    Sketcher.Constraint("Symmetric", 28, 2, 60, 2, -1, 1),
    Sketcher.Constraint("Symmetric", 30, 2, 62, 2, -1, 1),
    Sketcher.Constraint("Symmetric", 32, 2, 64, 2, -1, 1),
    Sketcher.Constraint("Symmetric", 34, 2, 66, 2, -1, 1),
    Sketcher.Constraint("Symmetric", 36, 2, 68, 2, -1, 1),
    Sketcher.Constraint("Symmetric", 38, 2, 70, 2, -1, 1),
    Sketcher.Constraint("Symmetric", 6, 2, 72, 2, -1, 1),
    Sketcher.Constraint("Symmetric", 0, 2, 74, 2, -1, 1),
    Sketcher.Constraint("Symmetric", 2, 2, 76, 2, -1, 1),
    Sketcher.Constraint("Symmetric", 4, 2, 78, 2, -1, 1),
    Sketcher.Constraint("Symmetric", 38, 2, 40, 2, -2),
    Sketcher.Constraint("Symmetric", 37, 2, 41, 2, -2),
    Sketcher.Constraint("Symmetric", 35, 2, 43, 2, -2),
    Sketcher.Constraint("Symmetric", 33, 2, 45, 2, -2),
    Sketcher.Constraint("Symmetric", 30, 2, 48, 2, -2),
    Sketcher.Constraint("Symmetric", 29, 2, 49, 2, -2),
    Sketcher.Constraint("Symmetric", 27, 2, 51, 2, -2),
    Sketcher.Constraint("Symmetric", 25, 2, 53, 2, -2),
    Sketcher.Constraint("Symmetric", 3, 2, 72, 2, -2),
    Sketcher.Constraint("Perpendicular", 0, 2),
    Sketcher.Constraint("Perpendicular", 2, 4),
    Sketcher.Constraint("Perpendicular", 4, 6),
    Sketcher.Constraint("Perpendicular", 6, 9),
    Sketcher.Constraint("Perpendicular", 9, 11),
    Sketcher.Constraint("Perpendicular", 11, 13),
    Sketcher.Constraint("Perpendicular", 13, 15),
    Sketcher.Constraint("Perpendicular", 15, 17),
    Sketcher.Constraint("Perpendicular", 17, 19),
    Sketcher.Constraint("Perpendicular", 19, 21),
    Sketcher.Constraint("Perpendicular", 21, 23),
    Sketcher.Constraint("Perpendicular", 23, 24),
    Sketcher.Constraint("Perpendicular", 24, 26),
    Sketcher.Constraint("Perpendicular", 26, 28),
    Sketcher.Constraint("Perpendicular", 28, 30),
    Sketcher.Constraint("Perpendicular", 30, 32),
    Sketcher.Constraint("Perpendicular", 32, 34),
    Sketcher.Constraint("Perpendicular", 34, 36),
    Sketcher.Constraint("Perpendicular", 41, 43),
    Sketcher.Constraint("Perpendicular", 43, 45),
    Sketcher.Constraint("Perpendicular", 45, 47),
    Sketcher.Constraint("Perpendicular", 49, 51),
    Sketcher.Constraint("Perpendicular", 51, 53),
    Sketcher.Constraint("Perpendicular", 53, 55),
    Sketcher.Constraint("Perpendicular", 55, 56),
    Sketcher.Constraint("Perpendicular", 56, 58),
    Sketcher.Constraint("Perpendicular", 58, 60),
    Sketcher.Constraint("Perpendicular", 60, 62),
    Sketcher.Constraint("Perpendicular", 62, 64),
    Sketcher.Constraint("Perpendicular", 64, 66),
    Sketcher.Constraint("Perpendicular", 66, 68),
    Sketcher.Constraint("Perpendicular", 68, 70),
    Sketcher.Constraint("Parallel", 70, 72),
    Sketcher.Constraint("Perpendicular", 72, 74),
    Sketcher.Constraint("Perpendicular", 74, 76),
    Sketcher.Constraint("Perpendicular", 76, 78),
    Sketcher.Constraint("Horizontal", 1, 2, 4, 2),
    Sketcher.Constraint("Horizontal", 0, 2, 5, 2),
    Sketcher.Constraint("Horizontal", 10, 2, 13, 2),
    Sketcher.Constraint("Horizontal", 9, 2, 14, 2),
    Sketcher.Constraint("Horizontal", 18, 2, 21, 2),
    Sketcher.Constraint("Horizontal", 17, 2, 22, 2),
    Sketcher.Constraint("Horizontal", 24, 2, 29, 2),
    Sketcher.Constraint("Horizontal", 32, 2, 37, 2),
    Sketcher.Constraint("Horizontal", 41, 2, 46, 2),
    Sketcher.Constraint("Horizontal", 49, 2, 54, 2),
    Sketcher.Constraint("Vertical", 7, 2, 8, 2),
    Sketcher.Constraint("Vertical", 1, 2, 9, 2),
    Sketcher.Constraint("Vertical", 8, 2, 11, 2),
    Sketcher.Constraint("Vertical", 6, 2, 12, 2),
    Sketcher.Constraint("Vertical", 11, 2, 16, 2),
    Sketcher.Constraint("Vertical", 10, 2, 17, 2),
    Sketcher.Constraint("Vertical", 16, 2, 19, 2),
    Sketcher.Constraint("Vertical", 15, 2, 20, 2),
    Sketcher.Constraint("Equal", 5, 10),
    Sketcher.Constraint("Equal", 14, 18),
    Sketcher.Constraint("DistanceX", 3, 2, 3, 1, 19.0),
    Sketcher.Constraint("DistanceY", 1, 1, 1, 2, 4.0),
    Sketcher.Constraint("DistanceX", -1, 1, 0, 2, 51.0),
    Sketcher.Constraint("DistanceX", -1, 1, 4, 2, 31.0),
    Sketcher.Constraint("DistanceY", -1, 1, 9, 2, 8.0),
    Sketcher.Constraint("DistanceY", -1, 1, 17, 2, 18.0),
])
sketch10.setExpression("Constraints[205]", "Params.sketch10_width")
sketch10.setExpression("Constraints[206]", "Params.sketch10_height")
pocket9 = body.newObject("PartDesign::Pocket", "Pocket008")
pocket9.Profile = sketch10
pocket9.setExpression("Length", "Params.pocket9_length")
doc.recompute()

chamfer = body.newObject("PartDesign::Chamfer", "Chamfer")
chamfer.Base = (pocket9, edges_at(pocket9, [
    (60, 1.5, 32.5),
    (-60, 1.5, 32.5),
    (-60, 1.5, -32.5),
    (60, 1.5, -32.5),
]))
chamfer.setExpression("Size", "Params.chamfer_size")

doc.recompute()
